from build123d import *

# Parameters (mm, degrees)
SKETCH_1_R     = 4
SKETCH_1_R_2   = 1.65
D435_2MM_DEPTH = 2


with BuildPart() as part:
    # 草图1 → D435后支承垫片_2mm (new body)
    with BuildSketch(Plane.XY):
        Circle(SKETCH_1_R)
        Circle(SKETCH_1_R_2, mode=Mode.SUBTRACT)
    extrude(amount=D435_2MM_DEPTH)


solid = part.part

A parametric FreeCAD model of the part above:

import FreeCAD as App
import Part
import Sketcher
Q = App.Units.Quantity

doc = App.newDocument("Part")
body = doc.addObject("PartDesign::Body", "Body")

# Sketch on XY plane
sketch1 = body.newObject("Sketcher::SketchObject", "Sketch")
sketch1.AttachmentSupport = (doc.getObject("XY_Plane"), [""])
sketch1.MapMode = "FlatFace"
sketch1.addGeometry(Part.Circle(App.Vector(0, 0, 0), App.Vector(0, 0, 1), 4), False)
sketch1.addGeometry(Part.Circle(App.Vector(0, 0, 0), App.Vector(0, 0, 1), 1.65), False)
sketch1.addConstraint(Sketcher.Constraint("Coincident", 0, 3, -1, 1))
sketch1.addConstraint(Sketcher.Constraint("Coincident", 1, 3, -1, 1))
sketch1.addConstraint(Sketcher.Constraint("Diameter", 0, Q("8 mm")))
sketch1.addConstraint(Sketcher.Constraint("Diameter", 1, Q("3.3 mm")))
pad1 = body.newObject("PartDesign::Pad", "Pad")
pad1.Profile = sketch1
pad1.Length = 2

doc.recompute()
